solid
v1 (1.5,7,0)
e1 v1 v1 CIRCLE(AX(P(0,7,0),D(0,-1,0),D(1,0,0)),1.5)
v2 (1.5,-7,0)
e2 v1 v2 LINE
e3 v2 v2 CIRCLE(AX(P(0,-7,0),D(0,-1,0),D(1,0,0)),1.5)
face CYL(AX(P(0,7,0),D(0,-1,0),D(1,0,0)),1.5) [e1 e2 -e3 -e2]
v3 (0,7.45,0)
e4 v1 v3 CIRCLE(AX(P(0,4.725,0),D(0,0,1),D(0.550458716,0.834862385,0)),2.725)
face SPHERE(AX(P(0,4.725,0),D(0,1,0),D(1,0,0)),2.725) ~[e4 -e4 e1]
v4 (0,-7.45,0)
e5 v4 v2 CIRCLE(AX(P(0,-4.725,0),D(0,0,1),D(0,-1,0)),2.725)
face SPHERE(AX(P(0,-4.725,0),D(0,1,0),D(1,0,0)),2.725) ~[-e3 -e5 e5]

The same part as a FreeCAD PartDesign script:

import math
import FreeCAD as App
import Part
import Sketcher
from FreeCAD import Vector

doc = App.newDocument("Part")
body = doc.addObject("PartDesign::Body", "Body")

# Sketch on XY plane
sketch1 = body.newObject("Sketcher::SketchObject", "Sketch")
sketch1.AttachmentSupport = (doc.getObject("XY_Plane"), [""])
sketch1.MapMode = "FlatFace"
sketch1.addGeometry(Part.ArcOfCircle(Part.Circle(Vector(0, 4.7, 0), Vector(0, 0, 1), 2.7), math.radians(57), math.radians(90)), False)
sketch1.addGeometry(Part.LineSegment(Vector(0, 7.5, 0), Vector(0, -7.5, 0)), False)
sketch1.addGeometry(Part.ArcOfCircle(Part.Circle(Vector(0, -4.7, 0), Vector(0, 0, 1), 2.7), math.radians(-90), math.radians(-57)), False)
sketch1.addGeometry(Part.LineSegment(Vector(1.5, -7, 0), Vector(1.5, 7, 0)), False)
sketch1.addConstraint(Sketcher.Constraint("Coincident", 0, 2, 1, 1))
sketch1.addConstraint(Sketcher.Constraint("Coincident", 1, 2, 2, 1))
sketch1.addConstraint(Sketcher.Constraint("Coincident", 2, 2, 3, 1))
sketch1.addConstraint(Sketcher.Constraint("Coincident", 3, 2, 0, 1))
sketch1.addConstraint(Sketcher.Constraint("Vertical", 1))
sketch1.addConstraint(Sketcher.Constraint("Vertical", 3))
sketch1.addConstraint(Sketcher.Constraint("Equal", 0, 2))
sketch1.addConstraint(Sketcher.Constraint("Symmetric", 0, 3, 2, 3, -1, 1))
sketch1.addConstraint(Sketcher.Constraint("PointOnObject", 0, 3, -2))
sketch1.addConstraint(Sketcher.Constraint("PointOnObject", 0, 2, -2))
sketch1.addConstraint(Sketcher.Constraint("DistanceY", 3, 1, 3, 2, 14.0))
sketch1.addConstraint(Sketcher.Constraint("DistanceX", -1, 1, 2, 2, 1.5))
sketch1.addConstraint(Sketcher.Constraint("DistanceY", 1, 2, 2, 2, 0.45))
revolution = body.newObject("PartDesign::Revolution", "Revolution")
revolution.Profile = sketch1
revolution.ReferenceAxis = (sketch1, ["V_Axis"])
revolution.Angle = 360

doc.recompute()
